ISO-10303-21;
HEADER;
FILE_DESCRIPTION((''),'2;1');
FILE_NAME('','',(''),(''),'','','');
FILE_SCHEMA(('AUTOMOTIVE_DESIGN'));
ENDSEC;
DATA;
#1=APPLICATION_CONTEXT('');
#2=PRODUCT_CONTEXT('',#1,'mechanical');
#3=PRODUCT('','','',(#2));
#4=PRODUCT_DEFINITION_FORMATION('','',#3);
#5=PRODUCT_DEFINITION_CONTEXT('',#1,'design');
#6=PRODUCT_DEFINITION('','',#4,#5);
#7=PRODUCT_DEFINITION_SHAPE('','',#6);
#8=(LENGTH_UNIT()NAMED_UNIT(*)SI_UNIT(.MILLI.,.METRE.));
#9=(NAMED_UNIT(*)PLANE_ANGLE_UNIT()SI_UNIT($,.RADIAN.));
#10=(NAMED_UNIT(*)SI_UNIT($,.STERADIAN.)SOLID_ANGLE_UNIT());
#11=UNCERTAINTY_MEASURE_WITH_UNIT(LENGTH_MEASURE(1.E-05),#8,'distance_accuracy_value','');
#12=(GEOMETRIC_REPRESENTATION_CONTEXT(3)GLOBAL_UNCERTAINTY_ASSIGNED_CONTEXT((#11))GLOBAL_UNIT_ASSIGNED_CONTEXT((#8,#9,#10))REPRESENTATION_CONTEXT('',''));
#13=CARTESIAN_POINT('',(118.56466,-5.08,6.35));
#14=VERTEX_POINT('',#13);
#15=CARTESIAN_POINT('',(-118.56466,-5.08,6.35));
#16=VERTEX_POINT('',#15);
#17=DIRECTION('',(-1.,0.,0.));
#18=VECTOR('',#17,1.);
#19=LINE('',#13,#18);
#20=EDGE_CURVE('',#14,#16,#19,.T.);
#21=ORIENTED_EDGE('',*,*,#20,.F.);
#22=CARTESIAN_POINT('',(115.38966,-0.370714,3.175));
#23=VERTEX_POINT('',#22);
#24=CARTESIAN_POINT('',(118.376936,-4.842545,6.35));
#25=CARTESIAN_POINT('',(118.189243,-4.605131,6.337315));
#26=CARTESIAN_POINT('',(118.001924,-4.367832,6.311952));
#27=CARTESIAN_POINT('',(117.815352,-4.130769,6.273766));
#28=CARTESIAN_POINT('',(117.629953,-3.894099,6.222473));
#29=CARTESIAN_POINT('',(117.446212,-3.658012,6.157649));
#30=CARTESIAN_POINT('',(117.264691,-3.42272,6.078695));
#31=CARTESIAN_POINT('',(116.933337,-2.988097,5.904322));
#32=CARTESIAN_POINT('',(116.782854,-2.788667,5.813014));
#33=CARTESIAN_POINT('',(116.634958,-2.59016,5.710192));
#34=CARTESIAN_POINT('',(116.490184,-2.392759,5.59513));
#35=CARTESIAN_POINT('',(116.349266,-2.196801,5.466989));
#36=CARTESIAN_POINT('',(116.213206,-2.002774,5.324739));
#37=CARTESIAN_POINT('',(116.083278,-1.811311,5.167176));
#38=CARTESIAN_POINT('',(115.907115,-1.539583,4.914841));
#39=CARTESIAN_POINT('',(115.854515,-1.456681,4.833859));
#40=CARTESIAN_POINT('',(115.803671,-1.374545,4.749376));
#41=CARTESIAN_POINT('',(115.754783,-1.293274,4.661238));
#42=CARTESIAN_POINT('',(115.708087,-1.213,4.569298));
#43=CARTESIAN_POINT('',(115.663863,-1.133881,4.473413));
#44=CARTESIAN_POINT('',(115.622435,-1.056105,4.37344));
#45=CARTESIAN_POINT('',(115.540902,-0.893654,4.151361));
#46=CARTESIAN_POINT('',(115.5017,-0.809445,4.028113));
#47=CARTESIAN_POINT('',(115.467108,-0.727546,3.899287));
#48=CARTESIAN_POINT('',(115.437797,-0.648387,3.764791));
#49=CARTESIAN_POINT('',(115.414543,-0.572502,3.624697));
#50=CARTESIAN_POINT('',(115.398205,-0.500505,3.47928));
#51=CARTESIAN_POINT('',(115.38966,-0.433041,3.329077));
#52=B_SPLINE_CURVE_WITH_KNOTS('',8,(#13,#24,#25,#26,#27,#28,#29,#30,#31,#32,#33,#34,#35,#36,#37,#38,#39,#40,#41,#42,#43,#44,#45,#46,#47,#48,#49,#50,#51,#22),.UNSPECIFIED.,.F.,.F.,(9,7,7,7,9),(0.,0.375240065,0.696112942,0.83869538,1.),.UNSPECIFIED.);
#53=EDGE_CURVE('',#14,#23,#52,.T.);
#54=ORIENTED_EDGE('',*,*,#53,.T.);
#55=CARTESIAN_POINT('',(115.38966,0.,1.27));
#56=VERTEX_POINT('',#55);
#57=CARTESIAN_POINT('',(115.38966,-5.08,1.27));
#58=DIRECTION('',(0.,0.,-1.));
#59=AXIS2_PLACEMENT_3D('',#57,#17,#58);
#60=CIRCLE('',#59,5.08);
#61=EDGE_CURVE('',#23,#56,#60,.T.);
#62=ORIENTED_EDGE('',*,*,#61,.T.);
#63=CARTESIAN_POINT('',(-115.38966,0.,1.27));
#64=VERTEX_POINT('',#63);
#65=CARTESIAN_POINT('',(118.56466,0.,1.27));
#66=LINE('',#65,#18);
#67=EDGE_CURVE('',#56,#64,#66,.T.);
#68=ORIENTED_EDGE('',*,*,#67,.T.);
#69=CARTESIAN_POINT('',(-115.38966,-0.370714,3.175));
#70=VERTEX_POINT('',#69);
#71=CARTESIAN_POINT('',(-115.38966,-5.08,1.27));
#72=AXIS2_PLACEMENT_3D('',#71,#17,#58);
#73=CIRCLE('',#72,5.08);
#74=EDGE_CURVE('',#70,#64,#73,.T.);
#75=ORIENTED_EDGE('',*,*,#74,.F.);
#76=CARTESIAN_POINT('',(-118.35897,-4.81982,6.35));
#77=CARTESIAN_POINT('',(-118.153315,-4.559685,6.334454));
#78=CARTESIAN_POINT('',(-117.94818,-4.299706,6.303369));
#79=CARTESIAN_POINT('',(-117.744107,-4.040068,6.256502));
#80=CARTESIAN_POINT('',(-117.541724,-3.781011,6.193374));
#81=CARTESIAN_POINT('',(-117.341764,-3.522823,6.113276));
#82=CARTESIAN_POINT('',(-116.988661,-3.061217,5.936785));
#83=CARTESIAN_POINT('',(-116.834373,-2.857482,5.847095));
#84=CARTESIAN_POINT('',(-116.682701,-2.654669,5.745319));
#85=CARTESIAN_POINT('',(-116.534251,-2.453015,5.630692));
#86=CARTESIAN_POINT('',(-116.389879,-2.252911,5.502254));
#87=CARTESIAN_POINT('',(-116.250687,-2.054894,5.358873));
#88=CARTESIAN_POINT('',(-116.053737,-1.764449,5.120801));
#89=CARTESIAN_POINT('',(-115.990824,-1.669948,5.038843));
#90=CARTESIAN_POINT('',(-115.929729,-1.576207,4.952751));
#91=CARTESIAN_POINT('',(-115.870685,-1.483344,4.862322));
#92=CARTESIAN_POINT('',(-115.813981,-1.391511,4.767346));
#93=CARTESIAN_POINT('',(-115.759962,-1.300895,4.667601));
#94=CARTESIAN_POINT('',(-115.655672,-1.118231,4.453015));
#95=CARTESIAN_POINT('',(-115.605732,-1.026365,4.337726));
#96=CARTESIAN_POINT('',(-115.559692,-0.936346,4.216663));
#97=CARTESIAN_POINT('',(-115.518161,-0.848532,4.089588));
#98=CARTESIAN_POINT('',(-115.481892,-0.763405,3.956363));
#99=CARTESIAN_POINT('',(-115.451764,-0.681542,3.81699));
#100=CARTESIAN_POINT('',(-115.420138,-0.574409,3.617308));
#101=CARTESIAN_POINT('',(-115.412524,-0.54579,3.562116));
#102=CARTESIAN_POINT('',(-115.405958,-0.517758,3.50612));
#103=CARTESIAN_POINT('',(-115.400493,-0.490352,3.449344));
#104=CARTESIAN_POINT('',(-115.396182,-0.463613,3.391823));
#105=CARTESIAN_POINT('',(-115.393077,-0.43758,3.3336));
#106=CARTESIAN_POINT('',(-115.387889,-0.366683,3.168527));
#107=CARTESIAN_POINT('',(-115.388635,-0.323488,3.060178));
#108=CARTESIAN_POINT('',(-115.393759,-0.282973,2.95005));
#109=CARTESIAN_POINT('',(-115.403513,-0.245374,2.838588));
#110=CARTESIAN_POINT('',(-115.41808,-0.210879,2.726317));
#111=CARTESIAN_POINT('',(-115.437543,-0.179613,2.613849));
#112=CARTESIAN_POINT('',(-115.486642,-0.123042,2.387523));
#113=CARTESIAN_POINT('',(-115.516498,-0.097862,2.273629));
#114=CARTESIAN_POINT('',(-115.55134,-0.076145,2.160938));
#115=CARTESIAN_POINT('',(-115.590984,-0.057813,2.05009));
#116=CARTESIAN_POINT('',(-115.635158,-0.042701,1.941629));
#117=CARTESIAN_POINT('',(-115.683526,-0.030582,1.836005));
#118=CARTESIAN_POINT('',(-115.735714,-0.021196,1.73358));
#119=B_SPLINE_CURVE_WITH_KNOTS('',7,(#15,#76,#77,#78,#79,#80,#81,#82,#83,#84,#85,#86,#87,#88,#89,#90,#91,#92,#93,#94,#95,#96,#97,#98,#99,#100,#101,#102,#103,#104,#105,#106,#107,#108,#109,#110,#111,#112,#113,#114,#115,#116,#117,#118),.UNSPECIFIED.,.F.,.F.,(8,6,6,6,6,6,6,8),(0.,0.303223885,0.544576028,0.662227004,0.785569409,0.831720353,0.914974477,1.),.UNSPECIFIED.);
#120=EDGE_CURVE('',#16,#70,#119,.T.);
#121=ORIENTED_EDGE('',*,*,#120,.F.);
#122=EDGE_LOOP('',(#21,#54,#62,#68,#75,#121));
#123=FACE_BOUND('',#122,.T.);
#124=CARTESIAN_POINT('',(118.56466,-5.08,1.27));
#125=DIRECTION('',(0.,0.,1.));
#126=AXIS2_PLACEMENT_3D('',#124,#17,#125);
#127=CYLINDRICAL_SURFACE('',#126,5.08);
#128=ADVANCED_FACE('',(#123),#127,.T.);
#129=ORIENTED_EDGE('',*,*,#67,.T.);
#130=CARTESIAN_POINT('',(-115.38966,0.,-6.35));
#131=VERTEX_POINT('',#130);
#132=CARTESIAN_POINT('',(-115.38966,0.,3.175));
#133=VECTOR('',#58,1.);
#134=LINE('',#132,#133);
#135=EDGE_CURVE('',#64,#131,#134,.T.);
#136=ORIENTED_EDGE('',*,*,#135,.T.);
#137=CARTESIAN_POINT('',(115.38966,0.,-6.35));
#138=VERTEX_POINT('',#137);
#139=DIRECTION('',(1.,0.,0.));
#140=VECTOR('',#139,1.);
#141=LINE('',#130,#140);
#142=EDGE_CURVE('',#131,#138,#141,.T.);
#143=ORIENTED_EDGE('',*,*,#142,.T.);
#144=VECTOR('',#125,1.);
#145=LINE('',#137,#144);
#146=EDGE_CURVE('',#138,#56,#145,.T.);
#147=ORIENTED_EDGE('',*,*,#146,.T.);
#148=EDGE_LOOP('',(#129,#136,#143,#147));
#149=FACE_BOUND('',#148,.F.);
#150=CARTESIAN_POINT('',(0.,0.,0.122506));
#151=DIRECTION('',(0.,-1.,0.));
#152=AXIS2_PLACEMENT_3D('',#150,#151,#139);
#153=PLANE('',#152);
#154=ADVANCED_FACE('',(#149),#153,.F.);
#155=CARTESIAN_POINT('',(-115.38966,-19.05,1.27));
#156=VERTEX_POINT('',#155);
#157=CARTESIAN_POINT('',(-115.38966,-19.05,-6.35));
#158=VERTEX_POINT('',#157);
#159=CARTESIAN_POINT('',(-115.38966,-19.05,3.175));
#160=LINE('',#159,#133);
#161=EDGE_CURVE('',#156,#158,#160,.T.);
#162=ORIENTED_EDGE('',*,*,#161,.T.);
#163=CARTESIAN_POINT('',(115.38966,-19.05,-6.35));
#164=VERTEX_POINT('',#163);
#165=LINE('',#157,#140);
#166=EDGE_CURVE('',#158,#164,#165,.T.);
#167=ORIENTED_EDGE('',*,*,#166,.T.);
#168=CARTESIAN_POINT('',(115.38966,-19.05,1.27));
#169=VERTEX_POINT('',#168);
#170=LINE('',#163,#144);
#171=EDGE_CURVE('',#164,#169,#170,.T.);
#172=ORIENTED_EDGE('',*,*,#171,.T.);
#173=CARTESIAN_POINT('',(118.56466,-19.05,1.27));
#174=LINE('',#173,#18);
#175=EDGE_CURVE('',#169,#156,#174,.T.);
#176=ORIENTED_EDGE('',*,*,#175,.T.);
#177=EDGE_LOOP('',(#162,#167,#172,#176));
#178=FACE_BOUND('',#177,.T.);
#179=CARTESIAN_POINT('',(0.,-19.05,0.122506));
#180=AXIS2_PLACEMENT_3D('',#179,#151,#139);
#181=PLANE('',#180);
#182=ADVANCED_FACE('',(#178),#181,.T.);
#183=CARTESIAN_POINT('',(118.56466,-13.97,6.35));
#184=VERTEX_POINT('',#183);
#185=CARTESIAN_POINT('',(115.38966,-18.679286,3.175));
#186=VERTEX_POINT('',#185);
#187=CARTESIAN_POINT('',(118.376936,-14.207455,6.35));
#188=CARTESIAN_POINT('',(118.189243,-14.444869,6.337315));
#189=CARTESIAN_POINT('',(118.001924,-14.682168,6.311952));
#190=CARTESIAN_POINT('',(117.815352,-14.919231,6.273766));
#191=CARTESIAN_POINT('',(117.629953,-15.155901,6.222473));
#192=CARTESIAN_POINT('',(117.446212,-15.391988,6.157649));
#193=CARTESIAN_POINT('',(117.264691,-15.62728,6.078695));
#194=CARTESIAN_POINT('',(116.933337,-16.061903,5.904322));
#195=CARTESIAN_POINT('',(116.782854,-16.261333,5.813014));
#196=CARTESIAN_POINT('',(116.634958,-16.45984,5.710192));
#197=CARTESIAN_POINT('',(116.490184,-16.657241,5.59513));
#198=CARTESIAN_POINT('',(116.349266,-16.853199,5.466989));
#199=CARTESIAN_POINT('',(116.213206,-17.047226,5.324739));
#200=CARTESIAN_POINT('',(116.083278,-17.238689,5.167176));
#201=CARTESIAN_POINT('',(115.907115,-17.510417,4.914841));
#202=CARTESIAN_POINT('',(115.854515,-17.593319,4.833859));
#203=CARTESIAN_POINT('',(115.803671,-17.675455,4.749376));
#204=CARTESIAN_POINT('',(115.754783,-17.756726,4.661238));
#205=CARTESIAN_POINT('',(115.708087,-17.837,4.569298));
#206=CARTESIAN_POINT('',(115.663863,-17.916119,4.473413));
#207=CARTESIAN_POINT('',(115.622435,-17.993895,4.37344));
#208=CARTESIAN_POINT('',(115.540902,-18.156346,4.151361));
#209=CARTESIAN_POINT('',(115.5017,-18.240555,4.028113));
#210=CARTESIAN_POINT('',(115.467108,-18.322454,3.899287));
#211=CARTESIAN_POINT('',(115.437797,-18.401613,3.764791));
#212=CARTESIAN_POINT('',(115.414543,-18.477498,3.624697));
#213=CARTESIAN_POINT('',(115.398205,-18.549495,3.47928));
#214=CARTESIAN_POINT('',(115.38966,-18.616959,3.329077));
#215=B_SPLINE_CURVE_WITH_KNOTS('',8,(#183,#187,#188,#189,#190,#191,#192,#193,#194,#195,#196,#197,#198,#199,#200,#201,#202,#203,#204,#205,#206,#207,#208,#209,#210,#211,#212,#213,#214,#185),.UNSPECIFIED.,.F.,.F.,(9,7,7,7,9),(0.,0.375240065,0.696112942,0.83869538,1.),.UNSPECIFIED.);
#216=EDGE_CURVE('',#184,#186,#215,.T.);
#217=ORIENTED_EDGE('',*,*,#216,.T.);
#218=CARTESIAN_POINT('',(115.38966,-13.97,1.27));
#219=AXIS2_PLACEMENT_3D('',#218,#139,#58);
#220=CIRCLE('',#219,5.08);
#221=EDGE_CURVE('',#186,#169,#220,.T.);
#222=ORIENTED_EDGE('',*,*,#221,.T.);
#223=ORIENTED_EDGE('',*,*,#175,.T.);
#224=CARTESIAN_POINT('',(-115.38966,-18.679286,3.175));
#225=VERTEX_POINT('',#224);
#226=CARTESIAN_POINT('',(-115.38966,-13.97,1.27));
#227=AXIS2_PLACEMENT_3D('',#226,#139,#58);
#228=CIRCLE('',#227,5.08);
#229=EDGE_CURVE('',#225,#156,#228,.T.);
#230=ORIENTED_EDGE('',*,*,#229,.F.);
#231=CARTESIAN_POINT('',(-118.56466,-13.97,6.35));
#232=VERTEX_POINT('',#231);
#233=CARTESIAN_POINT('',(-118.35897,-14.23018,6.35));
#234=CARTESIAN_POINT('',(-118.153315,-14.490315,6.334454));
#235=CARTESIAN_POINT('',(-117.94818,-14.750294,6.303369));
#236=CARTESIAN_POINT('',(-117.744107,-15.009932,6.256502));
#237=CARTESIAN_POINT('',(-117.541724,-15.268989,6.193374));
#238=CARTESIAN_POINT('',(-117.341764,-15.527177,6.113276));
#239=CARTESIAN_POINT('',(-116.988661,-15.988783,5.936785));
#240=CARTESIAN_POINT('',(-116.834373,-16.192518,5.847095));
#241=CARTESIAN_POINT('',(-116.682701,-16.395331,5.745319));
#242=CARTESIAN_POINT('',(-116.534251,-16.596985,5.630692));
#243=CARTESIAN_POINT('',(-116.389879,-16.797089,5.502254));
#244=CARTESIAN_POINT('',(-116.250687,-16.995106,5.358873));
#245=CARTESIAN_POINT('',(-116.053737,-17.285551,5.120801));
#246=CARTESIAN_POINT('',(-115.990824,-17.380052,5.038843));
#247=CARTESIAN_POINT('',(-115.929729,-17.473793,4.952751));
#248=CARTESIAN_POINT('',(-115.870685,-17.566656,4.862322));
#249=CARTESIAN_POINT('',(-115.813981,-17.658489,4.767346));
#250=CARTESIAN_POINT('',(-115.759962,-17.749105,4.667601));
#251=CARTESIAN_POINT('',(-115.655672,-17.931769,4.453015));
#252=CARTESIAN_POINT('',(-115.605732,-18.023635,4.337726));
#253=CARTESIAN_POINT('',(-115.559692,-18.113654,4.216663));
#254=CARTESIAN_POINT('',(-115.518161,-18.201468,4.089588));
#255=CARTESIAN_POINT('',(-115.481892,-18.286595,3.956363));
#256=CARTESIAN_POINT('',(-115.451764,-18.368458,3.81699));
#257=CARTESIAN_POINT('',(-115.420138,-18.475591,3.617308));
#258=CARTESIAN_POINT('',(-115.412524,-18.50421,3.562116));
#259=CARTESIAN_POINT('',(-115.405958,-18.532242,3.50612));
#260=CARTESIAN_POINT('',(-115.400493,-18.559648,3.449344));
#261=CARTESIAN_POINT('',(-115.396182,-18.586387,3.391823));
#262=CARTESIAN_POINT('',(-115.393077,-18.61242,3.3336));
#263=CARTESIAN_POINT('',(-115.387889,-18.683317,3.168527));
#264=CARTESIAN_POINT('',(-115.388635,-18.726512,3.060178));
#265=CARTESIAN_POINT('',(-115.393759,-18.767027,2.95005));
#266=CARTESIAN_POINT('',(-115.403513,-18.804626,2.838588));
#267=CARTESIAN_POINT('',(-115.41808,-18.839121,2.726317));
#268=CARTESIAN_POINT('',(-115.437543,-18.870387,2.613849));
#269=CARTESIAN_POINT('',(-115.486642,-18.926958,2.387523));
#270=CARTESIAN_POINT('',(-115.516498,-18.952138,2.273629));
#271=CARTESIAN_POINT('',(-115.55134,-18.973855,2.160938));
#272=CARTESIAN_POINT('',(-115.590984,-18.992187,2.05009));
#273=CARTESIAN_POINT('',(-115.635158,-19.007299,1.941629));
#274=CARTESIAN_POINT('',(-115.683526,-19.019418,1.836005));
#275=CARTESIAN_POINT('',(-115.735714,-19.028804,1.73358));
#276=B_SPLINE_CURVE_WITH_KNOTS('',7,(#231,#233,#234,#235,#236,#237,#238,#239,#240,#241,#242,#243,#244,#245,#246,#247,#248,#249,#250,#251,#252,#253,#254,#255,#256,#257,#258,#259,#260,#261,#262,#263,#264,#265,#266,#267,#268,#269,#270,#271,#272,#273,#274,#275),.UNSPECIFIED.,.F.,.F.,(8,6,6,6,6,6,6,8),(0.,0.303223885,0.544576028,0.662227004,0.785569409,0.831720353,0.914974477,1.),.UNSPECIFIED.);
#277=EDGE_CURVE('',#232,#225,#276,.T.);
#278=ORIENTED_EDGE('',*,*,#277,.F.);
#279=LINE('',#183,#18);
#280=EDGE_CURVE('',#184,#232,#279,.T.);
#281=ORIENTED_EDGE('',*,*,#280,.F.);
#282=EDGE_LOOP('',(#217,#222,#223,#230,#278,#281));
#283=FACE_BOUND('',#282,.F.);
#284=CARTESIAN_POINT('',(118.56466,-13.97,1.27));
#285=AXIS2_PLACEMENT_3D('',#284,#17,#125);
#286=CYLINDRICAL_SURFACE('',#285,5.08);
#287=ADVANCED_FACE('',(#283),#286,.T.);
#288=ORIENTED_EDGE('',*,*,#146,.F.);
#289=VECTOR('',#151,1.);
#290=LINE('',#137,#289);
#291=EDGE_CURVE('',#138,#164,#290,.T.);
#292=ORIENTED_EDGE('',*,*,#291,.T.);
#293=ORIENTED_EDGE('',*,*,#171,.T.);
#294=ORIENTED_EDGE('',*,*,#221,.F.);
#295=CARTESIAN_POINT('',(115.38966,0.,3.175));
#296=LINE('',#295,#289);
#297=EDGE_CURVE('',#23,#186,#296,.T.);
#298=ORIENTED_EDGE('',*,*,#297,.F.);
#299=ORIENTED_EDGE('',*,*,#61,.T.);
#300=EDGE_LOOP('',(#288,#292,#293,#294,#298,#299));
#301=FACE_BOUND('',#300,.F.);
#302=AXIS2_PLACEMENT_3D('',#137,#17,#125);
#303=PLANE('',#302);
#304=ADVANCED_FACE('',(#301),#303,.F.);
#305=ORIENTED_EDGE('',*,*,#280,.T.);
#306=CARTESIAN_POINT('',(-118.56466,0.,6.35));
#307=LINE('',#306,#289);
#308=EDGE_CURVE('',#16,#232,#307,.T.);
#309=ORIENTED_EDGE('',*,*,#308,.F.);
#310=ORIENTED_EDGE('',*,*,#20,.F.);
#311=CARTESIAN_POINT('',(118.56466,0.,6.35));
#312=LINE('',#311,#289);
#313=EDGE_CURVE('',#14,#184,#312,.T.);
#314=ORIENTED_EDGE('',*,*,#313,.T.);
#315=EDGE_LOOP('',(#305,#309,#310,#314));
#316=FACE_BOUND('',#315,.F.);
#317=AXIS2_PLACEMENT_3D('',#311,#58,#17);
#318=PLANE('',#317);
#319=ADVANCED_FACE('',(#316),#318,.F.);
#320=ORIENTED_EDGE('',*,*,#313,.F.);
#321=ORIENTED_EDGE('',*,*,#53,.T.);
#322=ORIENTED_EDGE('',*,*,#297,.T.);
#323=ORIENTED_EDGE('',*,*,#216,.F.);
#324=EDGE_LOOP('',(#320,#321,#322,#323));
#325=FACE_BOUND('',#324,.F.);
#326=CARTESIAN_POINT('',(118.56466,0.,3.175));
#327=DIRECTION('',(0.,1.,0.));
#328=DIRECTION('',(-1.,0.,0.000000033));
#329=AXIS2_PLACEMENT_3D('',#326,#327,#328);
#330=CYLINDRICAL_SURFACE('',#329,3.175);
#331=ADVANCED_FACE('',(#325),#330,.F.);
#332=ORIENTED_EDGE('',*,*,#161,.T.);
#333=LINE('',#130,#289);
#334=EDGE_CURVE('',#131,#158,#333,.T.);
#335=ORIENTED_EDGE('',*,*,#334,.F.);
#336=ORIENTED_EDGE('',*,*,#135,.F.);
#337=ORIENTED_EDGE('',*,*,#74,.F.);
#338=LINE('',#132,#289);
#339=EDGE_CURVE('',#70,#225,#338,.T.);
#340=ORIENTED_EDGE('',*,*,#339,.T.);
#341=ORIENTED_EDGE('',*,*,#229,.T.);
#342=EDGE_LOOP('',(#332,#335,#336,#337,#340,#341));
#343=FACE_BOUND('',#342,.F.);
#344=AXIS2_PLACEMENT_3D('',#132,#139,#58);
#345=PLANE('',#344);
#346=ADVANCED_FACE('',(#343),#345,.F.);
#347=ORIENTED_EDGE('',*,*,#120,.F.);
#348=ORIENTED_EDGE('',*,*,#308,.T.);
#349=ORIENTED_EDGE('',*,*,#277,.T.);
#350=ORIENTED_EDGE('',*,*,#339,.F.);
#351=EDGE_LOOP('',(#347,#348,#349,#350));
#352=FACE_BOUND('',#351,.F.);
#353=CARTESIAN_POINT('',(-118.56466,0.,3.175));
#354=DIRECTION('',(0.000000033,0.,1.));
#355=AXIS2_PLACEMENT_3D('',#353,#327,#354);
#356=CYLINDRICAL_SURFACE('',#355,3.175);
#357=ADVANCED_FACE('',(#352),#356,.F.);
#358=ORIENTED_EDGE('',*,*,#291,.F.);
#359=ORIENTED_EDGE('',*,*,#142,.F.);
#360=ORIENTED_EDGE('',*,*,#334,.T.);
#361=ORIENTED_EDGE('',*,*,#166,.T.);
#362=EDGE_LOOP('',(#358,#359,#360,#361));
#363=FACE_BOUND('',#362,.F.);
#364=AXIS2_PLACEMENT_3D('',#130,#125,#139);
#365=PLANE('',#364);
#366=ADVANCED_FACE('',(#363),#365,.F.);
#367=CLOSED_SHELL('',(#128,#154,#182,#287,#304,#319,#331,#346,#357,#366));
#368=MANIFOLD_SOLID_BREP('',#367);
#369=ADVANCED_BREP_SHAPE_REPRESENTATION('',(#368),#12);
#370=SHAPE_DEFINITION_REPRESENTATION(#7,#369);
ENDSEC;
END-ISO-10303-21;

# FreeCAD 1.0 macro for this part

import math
import FreeCAD as App
import Part
import Sketcher

V = App.Vector
Q = App.Units.Quantity


def edges_at(feature, points):
    """Names of the edges that pass closest to the given points."""
    edges = feature.Shape.Edges
    near = lambda p: min(range(len(edges)), key=lambda i: edges[i].distToShape(Part.Vertex(*p))[0])
    return sorted({f"Edge{near(p) + 1}" for p in points})

doc = App.newDocument("Part")
body = doc.addObject("PartDesign::Body", "Body")

# Sketch on XZ plane
sketch1 = body.newObject("Sketcher::SketchObject", "Sketch")
sketch1.AttachmentSupport = (doc.getObject("XZ_Plane"), [""])
sketch1.MapMode = "FlatFace"
sketch1.addGeometry(Part.ArcOfCircle(Part.Circle(V(118.56466, 3.175, 0), V(0, 0, 1), 3.175), math.radians(90.000002), math.radians(179.999998)), False)
sketch1.addGeometry(Part.LineSegment(V(118.56466, 6.35, 0), V(-118.56466, 6.35, 0)), False)
sketch1.addGeometry(Part.ArcOfCircle(Part.Circle(V(-118.56466, 3.175, 0), V(0, 0, 1), 3.175), math.radians(0.000002), math.radians(89.999998)), False)
sketch1.addGeometry(Part.LineSegment(V(-115.38966, 3.175, 0), V(-115.38966, -6.35, 0)), False)
sketch1.addGeometry(Part.LineSegment(V(-115.38966, -6.35, 0), V(115.38966, -6.35, 0)), False)
sketch1.addGeometry(Part.LineSegment(V(115.38966, -6.35, 0), V(115.38966, 3.175, 0)), False)
sketch1.addConstraint(Sketcher.Constraint("Tangent", 0, 1, 1, 1))
sketch1.addConstraint(Sketcher.Constraint("Tangent", 1, 2, 2, 2))
sketch1.addConstraint(Sketcher.Constraint("Tangent", 2, 1, 3, 1))
sketch1.addConstraint(Sketcher.Constraint("Coincident", 3, 2, 4, 1))
sketch1.addConstraint(Sketcher.Constraint("Coincident", 4, 2, 5, 1))
sketch1.addConstraint(Sketcher.Constraint("Tangent", 5, 2, 0, 2))
sketch1.addConstraint(Sketcher.Constraint("Horizontal", 1))
sketch1.addConstraint(Sketcher.Constraint("Vertical", 3))
sketch1.addConstraint(Sketcher.Constraint("Horizontal", 4))
sketch1.addConstraint(Sketcher.Constraint("Vertical", 5))
sketch1.addConstraint(Sketcher.Constraint("Equal", 0, 2))
sketch1.addConstraint(Sketcher.Constraint("Radius", 0, Q("0.125 in")))
sketch1.addConstraint(Sketcher.Constraint("DistanceY", 3, 2, 1, 2, Q("0.5 in")))
sketch1.addConstraint(Sketcher.Constraint("DistanceY", -1, 1, 0, 1, Q("0.25 in")))
sketch1.addConstraint(Sketcher.Constraint("DistanceX", 1, 2, 1, 1, Q("9.3358 in")))
sketch1.addConstraint(Sketcher.Constraint("DistanceX", -1, 1, 0, 3, Q("4.6679 in")))
pad1 = body.newObject("PartDesign::Pad", "Pad")
pad1.Profile = sketch1
pad1.Length = Q("0.75 in")
doc.recompute()

fillet = body.newObject("PartDesign::Fillet", "Fillet")
fillet.Base = (pad1, edges_at(pad1, [(0, -19.05, 6.35), (0, 0, 6.35)]))
fillet.Radius = Q("0.2 in")

doc.recompute()
